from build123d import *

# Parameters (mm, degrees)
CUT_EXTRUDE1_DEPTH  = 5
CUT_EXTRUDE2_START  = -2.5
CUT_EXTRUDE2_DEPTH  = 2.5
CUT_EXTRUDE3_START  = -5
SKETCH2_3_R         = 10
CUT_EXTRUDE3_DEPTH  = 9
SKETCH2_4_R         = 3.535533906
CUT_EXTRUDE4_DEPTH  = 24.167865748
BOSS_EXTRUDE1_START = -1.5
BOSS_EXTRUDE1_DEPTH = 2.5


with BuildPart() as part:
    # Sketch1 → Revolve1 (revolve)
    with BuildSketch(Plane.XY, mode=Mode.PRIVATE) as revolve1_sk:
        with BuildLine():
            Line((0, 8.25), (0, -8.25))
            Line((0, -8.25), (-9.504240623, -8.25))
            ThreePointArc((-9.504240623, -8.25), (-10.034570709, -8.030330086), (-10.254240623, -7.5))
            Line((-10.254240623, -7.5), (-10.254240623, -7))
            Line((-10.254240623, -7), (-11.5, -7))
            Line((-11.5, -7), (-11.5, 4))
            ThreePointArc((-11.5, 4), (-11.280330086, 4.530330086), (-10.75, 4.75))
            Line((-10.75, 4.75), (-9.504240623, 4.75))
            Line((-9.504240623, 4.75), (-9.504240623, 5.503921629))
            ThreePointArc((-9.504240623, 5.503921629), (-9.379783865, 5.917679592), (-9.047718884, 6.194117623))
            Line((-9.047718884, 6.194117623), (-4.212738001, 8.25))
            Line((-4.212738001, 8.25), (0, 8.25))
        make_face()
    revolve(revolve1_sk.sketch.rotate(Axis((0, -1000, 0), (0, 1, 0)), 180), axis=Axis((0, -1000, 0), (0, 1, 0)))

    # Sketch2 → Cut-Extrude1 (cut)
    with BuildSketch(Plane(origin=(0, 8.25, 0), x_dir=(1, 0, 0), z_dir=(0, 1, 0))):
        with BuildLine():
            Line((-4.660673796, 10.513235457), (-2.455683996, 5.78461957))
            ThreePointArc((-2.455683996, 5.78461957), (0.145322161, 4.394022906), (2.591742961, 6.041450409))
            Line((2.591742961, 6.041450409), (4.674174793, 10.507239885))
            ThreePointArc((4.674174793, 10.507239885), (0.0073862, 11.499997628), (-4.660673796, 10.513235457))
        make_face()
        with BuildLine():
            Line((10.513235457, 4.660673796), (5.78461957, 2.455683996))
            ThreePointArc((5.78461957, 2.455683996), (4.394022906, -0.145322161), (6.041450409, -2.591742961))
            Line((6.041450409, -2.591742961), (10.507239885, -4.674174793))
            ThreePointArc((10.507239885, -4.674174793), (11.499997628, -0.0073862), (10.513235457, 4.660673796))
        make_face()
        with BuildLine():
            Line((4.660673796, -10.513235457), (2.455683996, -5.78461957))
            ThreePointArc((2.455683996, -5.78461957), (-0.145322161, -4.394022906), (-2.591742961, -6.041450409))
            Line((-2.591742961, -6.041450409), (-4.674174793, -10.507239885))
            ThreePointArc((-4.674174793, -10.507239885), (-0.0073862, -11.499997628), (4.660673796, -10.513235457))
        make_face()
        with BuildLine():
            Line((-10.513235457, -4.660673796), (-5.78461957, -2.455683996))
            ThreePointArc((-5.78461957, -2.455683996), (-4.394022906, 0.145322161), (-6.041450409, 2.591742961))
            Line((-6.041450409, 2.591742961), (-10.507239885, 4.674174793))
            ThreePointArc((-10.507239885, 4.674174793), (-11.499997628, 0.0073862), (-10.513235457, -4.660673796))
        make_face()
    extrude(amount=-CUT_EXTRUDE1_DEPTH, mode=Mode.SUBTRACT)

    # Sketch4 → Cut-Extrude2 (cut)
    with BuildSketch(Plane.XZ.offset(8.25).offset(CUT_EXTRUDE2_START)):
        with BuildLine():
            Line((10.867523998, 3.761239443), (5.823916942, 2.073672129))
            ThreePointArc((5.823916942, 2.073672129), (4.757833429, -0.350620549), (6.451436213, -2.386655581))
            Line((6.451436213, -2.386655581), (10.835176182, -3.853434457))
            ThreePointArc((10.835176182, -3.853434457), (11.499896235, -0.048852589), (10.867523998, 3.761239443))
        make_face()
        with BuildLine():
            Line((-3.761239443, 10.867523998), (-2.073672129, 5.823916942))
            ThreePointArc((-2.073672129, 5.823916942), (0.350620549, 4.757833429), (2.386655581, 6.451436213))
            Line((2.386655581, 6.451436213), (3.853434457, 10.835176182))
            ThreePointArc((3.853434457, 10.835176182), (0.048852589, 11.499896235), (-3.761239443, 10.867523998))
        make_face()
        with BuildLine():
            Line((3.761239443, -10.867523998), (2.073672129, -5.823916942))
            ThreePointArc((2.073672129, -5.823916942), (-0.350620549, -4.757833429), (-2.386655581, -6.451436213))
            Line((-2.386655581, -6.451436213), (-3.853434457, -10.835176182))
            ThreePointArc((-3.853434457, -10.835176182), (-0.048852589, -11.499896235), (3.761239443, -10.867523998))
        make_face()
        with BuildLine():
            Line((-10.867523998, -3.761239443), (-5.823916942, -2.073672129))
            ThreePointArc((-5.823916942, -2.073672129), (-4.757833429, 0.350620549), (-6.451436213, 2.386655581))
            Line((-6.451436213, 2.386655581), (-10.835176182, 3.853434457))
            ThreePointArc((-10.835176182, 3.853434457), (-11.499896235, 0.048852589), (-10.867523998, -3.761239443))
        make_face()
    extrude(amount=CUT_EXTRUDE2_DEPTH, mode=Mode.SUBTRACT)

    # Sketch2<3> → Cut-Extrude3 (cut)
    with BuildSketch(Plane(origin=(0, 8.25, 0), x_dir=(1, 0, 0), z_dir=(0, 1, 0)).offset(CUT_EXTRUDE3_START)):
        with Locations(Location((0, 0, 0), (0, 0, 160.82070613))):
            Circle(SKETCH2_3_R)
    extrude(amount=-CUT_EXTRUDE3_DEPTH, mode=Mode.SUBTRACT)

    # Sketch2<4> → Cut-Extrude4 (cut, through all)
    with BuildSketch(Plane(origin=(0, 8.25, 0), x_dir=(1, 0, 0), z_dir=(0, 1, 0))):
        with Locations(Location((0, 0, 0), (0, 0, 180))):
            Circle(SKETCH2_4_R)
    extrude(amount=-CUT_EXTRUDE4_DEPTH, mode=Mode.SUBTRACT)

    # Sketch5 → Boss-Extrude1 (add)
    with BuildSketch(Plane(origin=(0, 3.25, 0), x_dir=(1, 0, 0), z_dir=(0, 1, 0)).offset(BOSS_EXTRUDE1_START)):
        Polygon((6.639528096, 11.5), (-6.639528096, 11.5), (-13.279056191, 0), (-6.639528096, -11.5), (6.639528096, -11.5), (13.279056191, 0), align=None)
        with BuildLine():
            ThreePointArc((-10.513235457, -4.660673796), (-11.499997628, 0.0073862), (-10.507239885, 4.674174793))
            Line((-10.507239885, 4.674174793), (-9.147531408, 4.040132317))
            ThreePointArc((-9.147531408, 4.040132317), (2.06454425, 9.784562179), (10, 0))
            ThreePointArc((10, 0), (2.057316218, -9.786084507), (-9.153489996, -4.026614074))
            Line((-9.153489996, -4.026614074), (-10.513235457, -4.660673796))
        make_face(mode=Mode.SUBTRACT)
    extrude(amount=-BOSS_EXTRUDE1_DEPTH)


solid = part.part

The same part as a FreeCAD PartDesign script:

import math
import FreeCAD as App
import Part
import Sketcher
Q = App.Units.Quantity

doc = App.newDocument("Part")
body = doc.addObject("PartDesign::Body", "Body")

# Sketch on XY plane
sketch1 = doc.addObject("Sketcher::SketchObject", "Sketch")
body.addObject(sketch1)
sketch1.AttachmentSupport = (doc.XY_Plane, [""])
sketch1.MapMode = "FlatFace"
sketch1.addGeometry([
    Part.LineSegment(App.Vector(0, -8.25, 0), App.Vector(0, 8.25, 0)),  # 0
    Part.LineSegment(App.Vector(0, 8.25, 0), App.Vector(-4.212738, 8.25, 0)),  # 1
    Part.LineSegment(App.Vector(-4.212738, 8.25, 0), App.Vector(-9.047719, 6.194118, 0)),  # 2
    Part.ArcOfCircle(Part.Circle(App.Vector(-8.754241, 5.503922, 0), App.Vector(0, 0, 1), 0.75), math.radians(113.035684), math.radians(180)),  # 3
    Part.LineSegment(App.Vector(-9.504241, 5.503922, 0), App.Vector(-9.504241, 4.75, 0)),  # 4
    Part.LineSegment(App.Vector(-9.504241, 4.75, 0), App.Vector(-10.75, 4.75, 0)),  # 5
    Part.ArcOfCircle(Part.Circle(App.Vector(-10.75, 4, 0), App.Vector(0, 0, 1), 0.75), math.radians(90), math.radians(180)),  # 6
    Part.LineSegment(App.Vector(-11.5, 4, 0), App.Vector(-11.5, -7, 0)),  # 7
    Part.LineSegment(App.Vector(-11.5, -7, 0), App.Vector(-10.254241, -7, 0)),  # 8
    Part.LineSegment(App.Vector(-10.254241, -7, 0), App.Vector(-10.254241, -7.5, 0)),  # 9
    Part.ArcOfCircle(Part.Circle(App.Vector(-9.504241, -7.5, 0), App.Vector(0, 0, 1), 0.75), math.radians(180), math.radians(270)),  # 10
    Part.LineSegment(App.Vector(-9.504241, -8.25, 0), App.Vector(0, -8.25, 0)),  # 11
], False)
sketch1.addConstraint([
    Sketcher.Constraint("Coincident", 0, 2, 1, 1),
    Sketcher.Constraint("Coincident", 1, 2, 2, 1),
    Sketcher.Constraint("Tangent", 2, 2, 3, 1),
    Sketcher.Constraint("Tangent", 3, 2, 4, 1),
    Sketcher.Constraint("Coincident", 4, 2, 5, 1),
    Sketcher.Constraint("Tangent", 5, 2, 6, 1),
    Sketcher.Constraint("Tangent", 6, 2, 7, 1),
    Sketcher.Constraint("Coincident", 7, 2, 8, 1),
    Sketcher.Constraint("Coincident", 8, 2, 9, 1),
    Sketcher.Constraint("Tangent", 9, 2, 10, 1),
    Sketcher.Constraint("Tangent", 10, 2, 11, 1),
    Sketcher.Constraint("Coincident", 11, 2, 0, 1),
    Sketcher.Constraint("Vertical", 0),
    Sketcher.Constraint("Horizontal", 1),
    Sketcher.Constraint("Vertical", 4),
    Sketcher.Constraint("Horizontal", 5),
    Sketcher.Constraint("Vertical", 7),
    Sketcher.Constraint("Horizontal", 8),
    Sketcher.Constraint("Vertical", 9),
    Sketcher.Constraint("Horizontal", 11),
    Sketcher.Constraint("Equal", 3, 6),
    Sketcher.Constraint("Equal", 6, 10),
    Sketcher.Constraint("Symmetric", 0, 2, 11, 2, -1, 1),
    Sketcher.Constraint("Vertical", 10, 3, 3, 2),
    Sketcher.Constraint("DistanceY", 7, 2, 7, 1, Q("11 mm")),
    Sketcher.Constraint("Radius", 3, Q("0.75 mm")),
    Sketcher.Constraint("DistanceY", 0, 1, 0, 2, Q("16.5 mm")),
    Sketcher.Constraint("DistanceY", 9, 2, 9, 1, Q("0.5 mm")),
    Sketcher.Constraint("DistanceX", 6, 2, -1, 1, Q("11.5 mm")),
    Sketcher.Constraint("DistanceX", 1, 2, 1, 1, Q("4.212738 mm")),
    Sketcher.Constraint("DistanceX", 5, 2, 5, 1, Q("1.245759 mm")),
    Sketcher.Constraint("DistanceY", 4, 2, 4, 1, Q("0.753922 mm")),
])
revolution = doc.addObject("PartDesign::Revolution", "Revolution")
body.addObject(revolution)
revolution.Profile = sketch1
revolution.ReferenceAxis = (sketch1, ["V_Axis"])
revolution.Angle = 360

# Sketch on XZ plane
sketch2 = doc.addObject("Sketcher::SketchObject", "Sketch001")
body.addObject(sketch2)
sketch2.AttachmentSupport = (doc.XZ_Plane, [""])
sketch2.MapMode = "FlatFace"
sketch2.AttachmentOffset = App.Placement(App.Vector(0, 0, -8.25), App.Rotation())
sketch2.addGeometry([
    Part.LineSegment(App.Vector(-4.660674, -10.513235, 0), App.Vector(-2.455684, -5.78462, 0)),  # 0
    Part.ArcOfCircle(Part.Circle(App.Vector(0, -7.25, 0), App.Vector(0, 0, 1), 2.859672), math.radians(25), math.radians(149.174203)),  # 1
    Part.LineSegment(App.Vector(2.591743, -6.04145, 0), App.Vector(4.674175, -10.50724, 0)),  # 2
    Part.ArcOfCircle(Part.Circle(App.Vector(0, 0, 0), App.Vector(0, 0, 1), 11.5), math.radians(-113.908423), math.radians(-66.017978)),  # 3
    Part.LineSegment(App.Vector(10.513235, -4.660674, 0), App.Vector(5.78462, -2.455684, 0)),  # 4
    Part.ArcOfCircle(Part.Circle(App.Vector(7.25, 0, 0), App.Vector(0, 0, 1), 2.859672), math.radians(115), math.radians(239.174203)),  # 5
    Part.LineSegment(App.Vector(6.04145, 2.591743, 0), App.Vector(10.50724, 4.674175, 0)),  # 6
    Part.ArcOfCircle(Part.Circle(App.Vector(0, 0, 0), App.Vector(0, 0, 1), 11.5), math.radians(-23.908423), math.radians(23.982022)),  # 7
    Part.LineSegment(App.Vector(4.660674, 10.513235, 0), App.Vector(2.455684, 5.78462, 0)),  # 8
    Part.ArcOfCircle(Part.Circle(App.Vector(0, 7.25, 0), App.Vector(0, 0, 1), 2.859672), math.radians(-155), math.radians(-30.825797)),  # 9
    Part.LineSegment(App.Vector(-2.591743, 6.04145, 0), App.Vector(-4.674175, 10.50724, 0)),  # 10
    Part.ArcOfCircle(Part.Circle(App.Vector(0, 0, 0), App.Vector(0, 0, 1), 11.5), math.radians(66.091577), math.radians(113.982022)),  # 11
    Part.LineSegment(App.Vector(-10.513235, 4.660674, 0), App.Vector(-5.78462, 2.455684, 0)),  # 12
    Part.ArcOfCircle(Part.Circle(App.Vector(-7.25, 0, 0), App.Vector(0, 0, 1), 2.859672), math.radians(-65), math.radians(59.174203)),  # 13
    Part.LineSegment(App.Vector(-6.04145, -2.591743, 0), App.Vector(-10.50724, -4.674175, 0)),  # 14
    Part.ArcOfCircle(Part.Circle(App.Vector(0, 0, 0), App.Vector(0, 0, 1), 11.5), math.radians(156.091577), math.radians(203.982022)),  # 15
], False)
sketch2.addConstraint([
    Sketcher.Constraint("Coincident", 0, 2, 1, 2),
    Sketcher.Constraint("Tangent", 1, 1, 2, 1),
    Sketcher.Constraint("Coincident", 2, 2, 3, 2),
    Sketcher.Constraint("Coincident", 3, 1, 0, 1),
    Sketcher.Constraint("Coincident", 4, 2, 5, 2),
    Sketcher.Constraint("Tangent", 5, 1, 6, 1),
    Sketcher.Constraint("Coincident", 6, 2, 7, 2),
    Sketcher.Constraint("Coincident", 7, 1, 4, 1),
    Sketcher.Constraint("Coincident", 8, 2, 9, 2),
    Sketcher.Constraint("Tangent", 9, 1, 10, 1),
    Sketcher.Constraint("Coincident", 10, 2, 11, 2),
    Sketcher.Constraint("Coincident", 11, 1, 8, 1),
    Sketcher.Constraint("Coincident", 12, 2, 13, 2),
    Sketcher.Constraint("Tangent", 13, 1, 14, 1),
    Sketcher.Constraint("Coincident", 14, 2, 15, 2),
    Sketcher.Constraint("Coincident", 15, 1, 12, 1),
    Sketcher.Constraint("Coincident", 3, 3, -1, 1),
    Sketcher.Constraint("Coincident", 7, 3, -1, 1),
    Sketcher.Constraint("Coincident", 11, 3, -1, 1),
    Sketcher.Constraint("Coincident", 15, 3, -1, 1),
    Sketcher.Constraint("Equal", 1, 5),
    Sketcher.Constraint("Equal", 3, 7),
    Sketcher.Constraint("Equal", 5, 9),
    Sketcher.Constraint("Equal", 7, 11),
    Sketcher.Constraint("Equal", 9, 13),
    Sketcher.Constraint("Equal", 11, 15),
    Sketcher.Constraint("Symmetric", 1, 3, 9, 3, -1, 1),
    Sketcher.Constraint("Symmetric", 5, 3, 13, 3, -1, 1),
    Sketcher.Constraint("PointOnObject", 1, 3, -2),
    Sketcher.Constraint("PointOnObject", 5, 3, -1),
    Sketcher.Constraint("Perpendicular", 0, 4),
    Sketcher.Constraint("Perpendicular", 2, 6),
    Sketcher.Constraint("Perpendicular", 4, 8),
    Sketcher.Constraint("Perpendicular", 6, 10),
    Sketcher.Constraint("Perpendicular", 8, 12),
    Sketcher.Constraint("Perpendicular", 10, 14),
    Sketcher.Constraint("Equal", 0, 4),
    Sketcher.Constraint("Equal", 2, 6),
    Sketcher.Constraint("Equal", 4, 8),
    Sketcher.Constraint("Equal", 8, 12),
    Sketcher.Constraint("Radius", 3, Q("11.5 mm")),
    Sketcher.Constraint("Angle", 0, Q("65 deg")),
    Sketcher.Constraint("Angle", 2, Q("-65 deg")),
    Sketcher.Constraint("DistanceY", 1, 3, 9, 3, Q("14.5 mm")),
    Sketcher.Constraint("Radius", 1, Q("2.859672 mm")),
    Sketcher.Constraint("Distance", 0, Q("5.21745 mm")),
])
pocket1 = doc.addObject("PartDesign::Pocket", "Pocket")
body.addObject(pocket1)
pocket1.Profile = sketch2
pocket1.Length = 5
pocket1.Reversed = True

# Sketch on XZ plane
sketch3 = doc.addObject("Sketcher::SketchObject", "Sketch002")
body.addObject(sketch3)
sketch3.AttachmentSupport = (doc.XZ_Plane, [""])
sketch3.MapMode = "FlatFace"
sketch3.AttachmentOffset = App.Placement(App.Vector(0, 0, 5.75), App.Rotation())
sketch3.addGeometry([
    Part.LineSegment(App.Vector(10.867524, 3.761239, 0), App.Vector(5.823917, 2.073672, 0)),  # 0
    Part.ArcOfCircle(Part.Circle(App.Vector(7.25, 0, 0), App.Vector(0, 0, 1), 2.51671), math.radians(124.516655), math.radians(251.5)),  # 1
    Part.LineSegment(App.Vector(6.451436, -2.386656, 0), App.Vector(10.835176, -3.853434, 0)),  # 2
    Part.ArcOfCircle(Part.Circle(App.Vector(0, 0, 0), App.Vector(0, 0, 1), 11.5), math.radians(-19.577479), math.radians(19.090687)),  # 3
    Part.LineSegment(App.Vector(-3.761239, 10.867524, 0), App.Vector(-2.073672, 5.823917, 0)),  # 4
    Part.ArcOfCircle(Part.Circle(App.Vector(0, 7.25, 0), App.Vector(0, 0, 1), 2.51671), math.radians(-145.483345), math.radians(-18.5)),  # 5
    Part.LineSegment(App.Vector(2.386656, 6.451436, 0), App.Vector(3.853434, 10.835176, 0)),  # 6
    Part.ArcOfCircle(Part.Circle(App.Vector(0, 0, 0), App.Vector(0, 0, 1), 11.5), math.radians(70.422521), math.radians(109.090687)),  # 7
    Part.LineSegment(App.Vector(3.761239, -10.867524, 0), App.Vector(2.073672, -5.823917, 0)),  # 8
    Part.ArcOfCircle(Part.Circle(App.Vector(0, -7.25, 0), App.Vector(0, 0, 1), 2.51671), math.radians(34.516655), math.radians(161.5)),  # 9
    Part.LineSegment(App.Vector(-2.386656, -6.451436, 0), App.Vector(-3.853434, -10.835176, 0)),  # 10
    Part.ArcOfCircle(Part.Circle(App.Vector(0, 0, 0), App.Vector(0, 0, 1), 11.5), math.radians(-109.577479), math.radians(-70.909313)),  # 11
    Part.LineSegment(App.Vector(-10.867524, -3.761239, 0), App.Vector(-5.823917, -2.073672, 0)),  # 12
    Part.ArcOfCircle(Part.Circle(App.Vector(-7.25, 0, 0), App.Vector(0, 0, 1), 2.51671), math.radians(-55.483345), math.radians(71.5)),  # 13
    Part.LineSegment(App.Vector(-6.451436, 2.386656, 0), App.Vector(-10.835176, 3.853434, 0)),  # 14
    Part.ArcOfCircle(Part.Circle(App.Vector(0, 0, 0), App.Vector(0, 0, 1), 11.5), math.radians(160.422521), math.radians(199.090687)),  # 15
], False)
sketch3.addConstraint([
    Sketcher.Constraint("Coincident", 0, 2, 1, 1),
    Sketcher.Constraint("Tangent", 1, 2, 2, 1),
    Sketcher.Constraint("Coincident", 2, 2, 3, 1),
    Sketcher.Constraint("Coincident", 3, 2, 0, 1),
    Sketcher.Constraint("Coincident", 4, 2, 5, 1),
    Sketcher.Constraint("Tangent", 5, 2, 6, 1),
    Sketcher.Constraint("Coincident", 6, 2, 7, 1),
    Sketcher.Constraint("Coincident", 7, 2, 4, 1),
    Sketcher.Constraint("Coincident", 8, 2, 9, 1),
    Sketcher.Constraint("Tangent", 9, 2, 10, 1),
    Sketcher.Constraint("Coincident", 10, 2, 11, 1),
    Sketcher.Constraint("Coincident", 11, 2, 8, 1),
    Sketcher.Constraint("Coincident", 12, 2, 13, 1),
    Sketcher.Constraint("Tangent", 13, 2, 14, 1),
    Sketcher.Constraint("Coincident", 14, 2, 15, 1),
    Sketcher.Constraint("Coincident", 15, 2, 12, 1),
    Sketcher.Constraint("Coincident", 3, 3, -1, 1),
    Sketcher.Constraint("Coincident", 7, 3, -1, 1),
    Sketcher.Constraint("Coincident", 11, 3, -1, 1),
    Sketcher.Constraint("Coincident", 15, 3, -1, 1),
    Sketcher.Constraint("Equal", 1, 5),
    Sketcher.Constraint("Equal", 3, 7),
    Sketcher.Constraint("Equal", 5, 9),
    Sketcher.Constraint("Equal", 7, 11),
    Sketcher.Constraint("Equal", 9, 13),
    Sketcher.Constraint("Equal", 11, 15),
    Sketcher.Constraint("Symmetric", 5, 3, 9, 3, -1, 1),
    Sketcher.Constraint("Symmetric", 1, 3, 13, 3, -1, 1),
    Sketcher.Constraint("PointOnObject", 1, 3, -1),
    Sketcher.Constraint("PointOnObject", 5, 3, -2),
    Sketcher.Constraint("Perpendicular", 0, 4),
    Sketcher.Constraint("Perpendicular", 2, 6),
    Sketcher.Constraint("Parallel", 4, 8),
    Sketcher.Constraint("Parallel", 6, 10),
    Sketcher.Constraint("Perpendicular", 8, 12),
    Sketcher.Constraint("Perpendicular", 10, 14),
    Sketcher.Constraint("Equal", 0, 4),
    Sketcher.Constraint("Equal", 2, 6),
    Sketcher.Constraint("Equal", 4, 8),
    Sketcher.Constraint("Equal", 8, 12),
    Sketcher.Constraint("Radius", 3, Q("11.5 mm")),
    Sketcher.Constraint("Angle", 0, Q("-161.5 deg")),
    Sketcher.Constraint("Angle", 2, Q("-18.5 deg")),
    Sketcher.Constraint("DistanceY", 9, 3, 5, 3, Q("14.5 mm")),
    Sketcher.Constraint("Radius", 1, Q("2.51671 mm")),
    Sketcher.Constraint("DistanceY", -1, 1, 3, 2, Q("3.761239 mm")),
])
pocket2 = doc.addObject("PartDesign::Pocket", "Pocket001")
body.addObject(pocket2)
pocket2.Profile = sketch3
pocket2.Length = 2.5
pocket2.Reversed = True

# Sketch on XZ plane
sketch4 = doc.addObject("Sketcher::SketchObject", "Sketch003")
body.addObject(sketch4)
sketch4.AttachmentSupport = (doc.XZ_Plane, [""])
sketch4.MapMode = "FlatFace"
sketch4.AttachmentOffset = App.Placement(App.Vector(0, 0, -3.25), App.Rotation())
sketch4.addGeometry(Part.Circle(App.Vector(0, 0, 0), App.Vector(0, 0, 1), 10), False)
sketch4.addConstraint([
    Sketcher.Constraint("Coincident", 0, 3, -1, 1),
    Sketcher.Constraint("Diameter", 0, Q("20 mm")),
])
pocket3 = doc.addObject("PartDesign::Pocket", "Pocket002")
body.addObject(pocket3)
pocket3.Profile = sketch4
pocket3.Length = 9
pocket3.Reversed = True

# Sketch on XZ plane
sketch5 = doc.addObject("Sketcher::SketchObject", "Sketch004")
body.addObject(sketch5)
sketch5.AttachmentSupport = (doc.XZ_Plane, [""])
sketch5.MapMode = "FlatFace"
sketch5.AttachmentOffset = App.Placement(App.Vector(0, 0, -8.25), App.Rotation())
sketch5.addGeometry(Part.Circle(App.Vector(0, 0, 0), App.Vector(0, 0, 1), 3.535534), False)
sketch5.addConstraint([
    Sketcher.Constraint("Coincident", 0, 3, -1, 1),
    Sketcher.Constraint("Diameter", 0, Q("7.071068 mm")),
])
pocket4 = doc.addObject("PartDesign::Pocket", "Pocket003")
body.addObject(pocket4)
pocket4.Profile = sketch5
pocket4.Type = "ThroughAll"
pocket4.Reversed = True

# Sketch on XZ plane
sketch6 = doc.addObject("Sketcher::SketchObject", "Sketch005")
body.addObject(sketch6)
sketch6.AttachmentSupport = (doc.XZ_Plane, [""])
sketch6.MapMode = "FlatFace"
sketch6.AttachmentOffset = App.Placement(App.Vector(0, 0, -1.75), App.Rotation())
sketch6.addGeometry([
    Part.LineSegment(App.Vector(6.639528, -11.5, 0), App.Vector(-6.639528, -11.5, 0)),  # 0
    Part.LineSegment(App.Vector(-6.639528, -11.5, 0), App.Vector(-13.279056, 0, 0)),  # 1
    Part.LineSegment(App.Vector(-13.279056, 0, 0), App.Vector(-6.639528, 11.5, 0)),  # 2
    Part.LineSegment(App.Vector(-6.639528, 11.5, 0), App.Vector(6.639528, 11.5, 0)),  # 3
    Part.LineSegment(App.Vector(6.639528, 11.5, 0), App.Vector(13.279056, 0, 0)),  # 4
    Part.LineSegment(App.Vector(13.279056, 0, 0), App.Vector(6.639528, -11.5, 0)),  # 5
    Part.LineSegment(App.Vector(-9.15349, 4.026614, 0), App.Vector(-10.513235, 4.660674, 0)),  # 6
    Part.ArcOfCircle(Part.Circle(App.Vector(0, 0, 0), App.Vector(0, 0, 1), 11.5), math.radians(156.091577), math.radians(203.982022)),  # 7
    Part.LineSegment(App.Vector(-10.50724, -4.674175, 0), App.Vector(-9.147531, -4.040132, 0)),  # 8
    Part.ArcOfCircle(Part.Circle(App.Vector(0, 0, 0), App.Vector(0, 0, 1), 10), math.radians(-156.170694), math.radians(0)),  # 9
    Part.ArcOfCircle(Part.Circle(App.Vector(0, 0, 0), App.Vector(0, 0, 1), 10), math.radians(0), math.radians(156.255338)),  # 10
], False)
sketch6.addConstraint([
    Sketcher.Constraint("Coincident", 0, 2, 1, 1),
    Sketcher.Constraint("Coincident", 1, 2, 2, 1),
    Sketcher.Constraint("Coincident", 2, 2, 3, 1),
    Sketcher.Constraint("Coincident", 3, 2, 4, 1),
    Sketcher.Constraint("Coincident", 4, 2, 5, 1),
    Sketcher.Constraint("Coincident", 5, 2, 0, 1),
    Sketcher.Constraint("Coincident", 6, 2, 7, 1),
    Sketcher.Constraint("Coincident", 7, 2, 8, 1),
    Sketcher.Constraint("Coincident", 8, 2, 9, 1),
    Sketcher.Constraint("Tangent", 9, 2, 10, 1),
    Sketcher.Constraint("Coincident", 10, 2, 6, 1),
    Sketcher.Constraint("Horizontal", 0),
    Sketcher.Constraint("Horizontal", 3),
    Sketcher.Constraint("Coincident", 7, 3, -1, 1),
    Sketcher.Constraint("Coincident", 9, 3, -1, 1),
    Sketcher.Constraint("Equal", 9, 10),
    Sketcher.Constraint("Symmetric", 0, 2, 3, 2, -1, 1),
    Sketcher.Constraint("Symmetric", 1, 2, 4, 2, -1, 1),
    Sketcher.Constraint("PointOnObject", 1, 2, -1),
    Sketcher.Constraint("PointOnObject", 9, 2, -1),
    Sketcher.Constraint("Parallel", 2, 5),
    Sketcher.Constraint("Vertical", 0, 2, 2, 2),
    Sketcher.Constraint("Radius", 9, Q("10 mm")),
    Sketcher.Constraint("Radius", 7, Q("11.5 mm")),
    Sketcher.Constraint("Angle", 1, Q("120 deg")),
    Sketcher.Constraint("Angle", 6, Q("155 deg")),
    Sketcher.Constraint("Angle", 8, Q("25 deg")),
    Sketcher.Constraint("DistanceY", 0, 2, 2, 2, Q("23 mm")),
    Sketcher.Constraint("DistanceX", 0, 2, 0, 1, Q("13.279056 mm")),
    Sketcher.Constraint("DistanceX", 7, 2, -1, 1, Q("10.50724 mm")),
    Sketcher.Constraint("DistanceX", 10, 2, -1, 1, Q("9.15349 mm")),
])
pad1 = doc.addObject("PartDesign::Pad", "Pad")
body.addObject(pad1)
pad1.Profile = sketch6
pad1.Length = 2.5

doc.recompute()
